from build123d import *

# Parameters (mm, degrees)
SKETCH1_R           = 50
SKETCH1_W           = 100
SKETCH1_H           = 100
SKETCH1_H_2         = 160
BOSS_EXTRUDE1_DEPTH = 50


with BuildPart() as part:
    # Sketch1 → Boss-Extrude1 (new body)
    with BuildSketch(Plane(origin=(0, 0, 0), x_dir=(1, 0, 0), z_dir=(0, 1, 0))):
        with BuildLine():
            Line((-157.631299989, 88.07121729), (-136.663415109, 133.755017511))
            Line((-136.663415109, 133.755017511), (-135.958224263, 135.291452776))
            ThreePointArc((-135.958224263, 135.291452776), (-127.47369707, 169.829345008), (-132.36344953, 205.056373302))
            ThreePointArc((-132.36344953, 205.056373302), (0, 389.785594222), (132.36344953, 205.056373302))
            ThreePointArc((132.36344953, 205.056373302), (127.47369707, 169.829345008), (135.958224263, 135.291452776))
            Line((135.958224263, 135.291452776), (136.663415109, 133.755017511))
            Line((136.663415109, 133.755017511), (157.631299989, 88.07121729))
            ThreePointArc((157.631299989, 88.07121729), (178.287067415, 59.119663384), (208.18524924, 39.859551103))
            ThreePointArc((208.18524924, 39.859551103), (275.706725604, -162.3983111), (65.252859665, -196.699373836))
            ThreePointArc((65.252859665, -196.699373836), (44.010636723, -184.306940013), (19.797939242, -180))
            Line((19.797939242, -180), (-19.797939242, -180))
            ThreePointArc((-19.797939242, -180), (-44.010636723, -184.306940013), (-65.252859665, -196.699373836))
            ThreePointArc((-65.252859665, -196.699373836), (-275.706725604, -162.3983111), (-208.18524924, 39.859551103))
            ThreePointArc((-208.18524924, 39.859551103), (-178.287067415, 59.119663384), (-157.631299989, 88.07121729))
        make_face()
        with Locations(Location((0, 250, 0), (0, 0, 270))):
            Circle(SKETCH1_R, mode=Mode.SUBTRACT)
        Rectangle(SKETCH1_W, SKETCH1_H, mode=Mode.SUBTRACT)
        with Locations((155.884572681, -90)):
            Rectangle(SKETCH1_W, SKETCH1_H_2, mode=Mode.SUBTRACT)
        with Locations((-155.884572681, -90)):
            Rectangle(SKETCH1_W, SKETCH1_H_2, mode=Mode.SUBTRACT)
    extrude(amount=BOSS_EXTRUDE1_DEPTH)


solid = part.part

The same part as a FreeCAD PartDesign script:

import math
import FreeCAD as App
import Part
import Sketcher

V = App.Vector
Q = App.Units.Quantity


def add_polygon(sketch, points):
    """Adds a closed chain of lines whose ends are joined by coincident constraints."""
    first, n = sketch.GeometryCount, len(points)
    for a, b in zip(points, points[1:] + points[:1]):
        sketch.addGeometry(Part.LineSegment(App.Vector(*a, 0), App.Vector(*b, 0)), False)
    for i in range(n):
        sketch.addConstraint(Sketcher.Constraint("Coincident", first + i, 2, first + (i + 1) % n, 1))

doc = App.newDocument("Part")
body = doc.addObject("PartDesign::Body", "Body")

# Sketch on XZ plane
sketch1 = body.newObject("Sketcher::SketchObject", "Sketch")
sketch1.AttachmentSupport = (doc.getObject("XZ_Plane"), [""])
sketch1.MapMode = "FlatFace"
sketch1.addGeometry(Part.LineSegment(V(-136.7, -133.8, 0), V(-157.6, -88.1, 0)), False)  # 0
sketch1.addGeometry(Part.ArcOfCircle(Part.Circle(V(-243.5, -127.5, 0), V(0, 0, 1), 94.4), math.radians(25), math.radians(68)), False)  # 1
sketch1.addGeometry(Part.ArcOfCircle(Part.Circle(V(-155.9, 90, 0), V(0, 0, 1), 140), math.radians(50), math.radians(248)), False)  # 2
sketch1.addGeometry(Part.ArcOfCircle(Part.Circle(V(-19.8, 250.2, 0), V(0, 0, 1), 70.2), math.radians(-130), math.radians(-90)), False)  # 3
sketch1.addGeometry(Part.LineSegment(V(-19.8, 180, 0), V(19.8, 180, 0)), False)  # 4
sketch1.addGeometry(Part.ArcOfCircle(Part.Circle(V(19.8, 250.2, 0), V(0, 0, 1), 70.2), math.radians(-90), math.radians(-50)), False)  # 5
sketch1.addGeometry(Part.ArcOfCircle(Part.Circle(V(155.9, 90, 0), V(0, 0, 1), 140), math.radians(-68), math.radians(130)), False)  # 6
sketch1.addGeometry(Part.ArcOfCircle(Part.Circle(V(243.5, -127.5, 0), V(0, 0, 1), 94.4), math.radians(112), math.radians(155)), False)  # 7
sketch1.addGeometry(Part.LineSegment(V(157.6, -88.1, 0), V(136.7, -133.8, 0)), False)  # 8
sketch1.addGeometry(Part.LineSegment(V(136.7, -133.8, 0), V(136, -135.3, 0)), False)  # 9
sketch1.addGeometry(Part.ArcOfCircle(Part.Circle(V(221.8, -174.7, 0), V(0, 0, 1), 94.4), math.radians(155), math.radians(199)), False)  # 10
sketch1.addGeometry(Part.ArcOfCircle(Part.Circle(V(0, -250, 0), V(0, 0, 1), 139.8), math.radians(161), math.radians(379)), False)  # 11
sketch1.addGeometry(Part.ArcOfCircle(Part.Circle(V(-221.8, -174.7, 0), V(0, 0, 1), 94.4), math.radians(-19), math.radians(25)), False)  # 12
sketch1.addGeometry(Part.LineSegment(V(-136, -135.3, 0), V(-136.7, -133.8, 0)), False)  # 13
add_polygon(sketch1, [(105.9, 170), (105.9, 10), (205.9, 10), (205.9, 170)])  # lines 14-17
add_polygon(sketch1, [(-205.9, 170), (-205.9, 10), (-105.9, 10), (-105.9, 170)])  # lines 18-21
add_polygon(sketch1, [(-50, 50), (-50, -50), (50, -50), (50, 50)])  # lines 22-25
sketch1.addGeometry(Part.Circle(V(0, -250, 0), V(0, 0, 1), 50), False)  # 26
sketch1.addConstraint(Sketcher.Constraint("Tangent", 0, 2, 1, 1))
sketch1.addConstraint(Sketcher.Constraint("Tangent", 1, 2, 2, 2))
sketch1.addConstraint(Sketcher.Constraint("Tangent", 2, 1, 3, 1))
sketch1.addConstraint(Sketcher.Constraint("Tangent", 3, 2, 4, 1))
sketch1.addConstraint(Sketcher.Constraint("Tangent", 4, 2, 5, 1))
sketch1.addConstraint(Sketcher.Constraint("Tangent", 5, 2, 6, 2))
sketch1.addConstraint(Sketcher.Constraint("Tangent", 6, 1, 7, 1))
sketch1.addConstraint(Sketcher.Constraint("Tangent", 7, 2, 8, 1))
sketch1.addConstraint(Sketcher.Constraint("Coincident", 8, 2, 9, 1))
sketch1.addConstraint(Sketcher.Constraint("Tangent", 9, 2, 10, 1))
sketch1.addConstraint(Sketcher.Constraint("Tangent", 10, 2, 11, 2))
sketch1.addConstraint(Sketcher.Constraint("Tangent", 11, 1, 12, 1))
sketch1.addConstraint(Sketcher.Constraint("Tangent", 12, 2, 13, 1))
sketch1.addConstraint(Sketcher.Constraint("Coincident", 13, 2, 0, 1))
sketch1.addConstraint(Sketcher.Constraint("Horizontal", 4))
sketch1.addConstraint(Sketcher.Constraint("Vertical", 14))
sketch1.addConstraint(Sketcher.Constraint("Horizontal", 15))
sketch1.addConstraint(Sketcher.Constraint("Vertical", 16))
sketch1.addConstraint(Sketcher.Constraint("Horizontal", 17))
sketch1.addConstraint(Sketcher.Constraint("Vertical", 18))
sketch1.addConstraint(Sketcher.Constraint("Horizontal", 19))
sketch1.addConstraint(Sketcher.Constraint("Vertical", 20))
sketch1.addConstraint(Sketcher.Constraint("Horizontal", 21))
sketch1.addConstraint(Sketcher.Constraint("Vertical", 22))
sketch1.addConstraint(Sketcher.Constraint("Horizontal", 23))
sketch1.addConstraint(Sketcher.Constraint("Vertical", 24))
sketch1.addConstraint(Sketcher.Constraint("Horizontal", 25))
sketch1.addConstraint(Sketcher.Constraint("Coincident", 26, 3, 11, 3))
sketch1.addConstraint(Sketcher.Constraint("Equal", 3, 5))
sketch1.addConstraint(Sketcher.Constraint("Equal", 2, 6))
sketch1.addConstraint(Sketcher.Constraint("Equal", 1, 7))
sketch1.addConstraint(Sketcher.Constraint("Equal", 7, 10))
sketch1.addConstraint(Sketcher.Constraint("Equal", 10, 12))
sketch1.addConstraint(Sketcher.Constraint("Symmetric", 22, 2, 24, 2, -1, 1))
sketch1.addConstraint(Sketcher.Constraint("Symmetric", 2, 3, 6, 3, -2))
sketch1.addConstraint(Sketcher.Constraint("Symmetric", 10, 3, 12, 3, -2))
sketch1.addConstraint(Sketcher.Constraint("Symmetric", 8, 2, 13, 2, -2))
sketch1.addConstraint(Sketcher.Constraint("Symmetric", 15, 2, 18, 2, -2))
sketch1.addConstraint(Sketcher.Constraint("Symmetric", 17, 2, 20, 2, -2))
sketch1.addConstraint(Sketcher.Constraint("Parallel", 8, 9))
sketch1.addConstraint(Sketcher.Constraint("Parallel", 0, 13))
sketch1.addConstraint(Sketcher.Constraint("Equal", 21, 23))
sketch1.addConstraint(Sketcher.Constraint("Equal", 25, 22))
sketch1.addConstraint(Sketcher.Constraint("Diameter", 26, Q("100 mm")))
sketch1.addConstraint(Sketcher.Constraint("DistanceX", 15, 1, 15, 2, Q("100 mm")))
sketch1.addConstraint(Sketcher.Constraint("DistanceY", 14, 2, 14, 1, Q("160 mm")))
sketch1.addConstraint(Sketcher.Constraint("DistanceY", -1, 1, 2, 3, Q("90 mm")))
sketch1.addConstraint(Sketcher.Constraint("DistanceY", 11, 3, -1, 1, Q("250 mm")))
sketch1.addConstraint(Sketcher.Constraint("DistanceY", -1, 1, 3, 2, Q("180 mm")))
sketch1.addConstraint(Sketcher.Constraint("DistanceY", -1, 1, 14, 2, Q("10 mm")))
sketch1.addConstraint(Sketcher.Constraint("DistanceX", 14, 2, 6, 3, Q("50 mm")))
sketch1.addConstraint(Sketcher.Constraint("Radius", 1, Q("94.448259 mm")))
sketch1.addConstraint(Sketcher.Constraint("Radius", 3, Q("70.212779 mm")))
sketch1.addConstraint(Sketcher.Constraint("Radius", 2, Q("139.995942 mm")))
sketch1.addConstraint(Sketcher.Constraint("Radius", 11, Q("139.785594 mm")))
sketch1.addConstraint(Sketcher.Constraint("DistanceX", 4, 1, 4, 2, Q("39.595878 mm")))
sketch1.addConstraint(Sketcher.Constraint("DistanceX", 1, 3, -1, 1, Q("243.469899 mm")))
sketch1.addConstraint(Sketcher.Constraint("DistanceX", 0, 2, -1, 1, Q("157.6313 mm")))
sketch1.addConstraint(Sketcher.Constraint("DistanceY", 8, 2, 7, 2, Q("45.6838 mm")))
pad1 = body.newObject("PartDesign::Pad", "Pad")
pad1.Profile = sketch1
pad1.Length = 50
pad1.Reversed = True

doc.recompute()
